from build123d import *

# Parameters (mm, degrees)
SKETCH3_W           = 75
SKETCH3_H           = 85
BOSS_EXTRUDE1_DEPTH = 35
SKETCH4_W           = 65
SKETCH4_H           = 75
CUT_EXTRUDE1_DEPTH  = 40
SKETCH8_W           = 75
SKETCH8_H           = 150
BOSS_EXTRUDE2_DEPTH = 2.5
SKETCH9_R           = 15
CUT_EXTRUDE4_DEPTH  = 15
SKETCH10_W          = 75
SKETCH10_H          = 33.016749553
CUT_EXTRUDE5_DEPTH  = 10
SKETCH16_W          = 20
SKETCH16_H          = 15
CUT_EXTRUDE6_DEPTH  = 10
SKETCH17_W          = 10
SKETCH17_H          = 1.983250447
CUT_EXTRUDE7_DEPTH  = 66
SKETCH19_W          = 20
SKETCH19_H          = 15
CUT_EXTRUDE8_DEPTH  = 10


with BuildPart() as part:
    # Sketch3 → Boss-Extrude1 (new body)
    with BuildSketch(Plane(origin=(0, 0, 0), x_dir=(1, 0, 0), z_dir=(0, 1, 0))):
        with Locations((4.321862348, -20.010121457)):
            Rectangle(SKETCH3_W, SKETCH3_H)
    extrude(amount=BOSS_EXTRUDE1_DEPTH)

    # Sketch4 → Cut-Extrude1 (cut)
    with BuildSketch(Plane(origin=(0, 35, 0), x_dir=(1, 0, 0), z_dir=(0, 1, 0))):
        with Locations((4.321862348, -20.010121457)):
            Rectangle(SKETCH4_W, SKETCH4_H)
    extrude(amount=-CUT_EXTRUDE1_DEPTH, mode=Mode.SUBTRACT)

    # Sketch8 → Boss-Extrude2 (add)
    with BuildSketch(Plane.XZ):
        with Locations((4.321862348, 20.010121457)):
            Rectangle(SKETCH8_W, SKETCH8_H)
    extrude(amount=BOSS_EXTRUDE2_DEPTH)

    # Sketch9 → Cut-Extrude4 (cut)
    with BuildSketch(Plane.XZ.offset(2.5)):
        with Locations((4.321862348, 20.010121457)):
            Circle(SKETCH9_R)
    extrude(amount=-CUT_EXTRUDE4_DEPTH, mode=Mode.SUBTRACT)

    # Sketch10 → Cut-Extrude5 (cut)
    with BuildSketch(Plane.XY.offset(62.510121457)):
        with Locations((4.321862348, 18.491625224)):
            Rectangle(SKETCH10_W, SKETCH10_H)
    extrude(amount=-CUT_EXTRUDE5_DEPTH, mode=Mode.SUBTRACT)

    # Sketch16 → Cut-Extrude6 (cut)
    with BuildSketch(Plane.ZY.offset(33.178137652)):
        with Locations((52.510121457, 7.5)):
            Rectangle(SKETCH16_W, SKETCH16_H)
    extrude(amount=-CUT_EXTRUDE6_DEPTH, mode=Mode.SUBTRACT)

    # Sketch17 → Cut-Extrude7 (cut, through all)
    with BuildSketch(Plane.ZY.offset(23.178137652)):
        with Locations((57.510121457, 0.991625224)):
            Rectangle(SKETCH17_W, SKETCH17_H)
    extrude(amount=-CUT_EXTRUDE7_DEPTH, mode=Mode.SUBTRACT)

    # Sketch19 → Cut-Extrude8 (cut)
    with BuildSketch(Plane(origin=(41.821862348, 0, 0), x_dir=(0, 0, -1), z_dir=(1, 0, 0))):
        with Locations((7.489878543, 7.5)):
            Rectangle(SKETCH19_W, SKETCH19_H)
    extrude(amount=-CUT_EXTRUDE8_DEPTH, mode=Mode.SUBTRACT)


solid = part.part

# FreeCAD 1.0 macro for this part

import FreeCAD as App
import Part
import Sketcher

V = App.Vector


def add_polygon(sketch, points):
    """Adds a closed chain of lines whose ends are joined by coincident constraints."""
    first, n = sketch.GeometryCount, len(points)
    for a, b in zip(points, points[1:] + points[:1]):
        sketch.addGeometry(Part.LineSegment(App.Vector(*a, 0), App.Vector(*b, 0)), False)
    for i in range(n):
        sketch.addConstraint(Sketcher.Constraint("Coincident", first + i, 2, first + (i + 1) % n, 1))

doc = App.newDocument("Part")
body = doc.addObject("PartDesign::Body", "Body")

# Sketch on XZ plane
sketch1 = body.newObject("Sketcher::SketchObject", "Sketch")
sketch1.AttachmentSupport = (doc.getObject("XZ_Plane"), [""])
sketch1.MapMode = "FlatFace"
add_polygon(sketch1, [(-33.178138, -22.489879), (-33.178138, 62.510121), (41.821862, 62.510121), (41.821862, -22.489879)])  # lines 0-3
sketch1.addConstraint([
    Sketcher.Constraint("Vertical", 0),
    Sketcher.Constraint("Horizontal", 1),
    Sketcher.Constraint("Vertical", 2),
    Sketcher.Constraint("Horizontal", 3),
    Sketcher.Constraint("DistanceX", 1, 1, 1, 2, 75.0),
    Sketcher.Constraint("DistanceY", 0, 1, 0, 2, 85.0),
    Sketcher.Constraint("DistanceY", -1, 1, 0, 2, 62.510121),
    Sketcher.Constraint("DistanceX", 0, 2, -1, 1, 33.178138),
])
pad1 = body.newObject("PartDesign::Pad", "Pad")
pad1.Profile = sketch1
pad1.Length = 35
pad1.Reversed = True

# Sketch on XZ plane
sketch2 = body.newObject("Sketcher::SketchObject", "Sketch001")
sketch2.AttachmentSupport = (doc.getObject("XZ_Plane"), [""])
sketch2.MapMode = "FlatFace"
sketch2.AttachmentOffset = App.Placement(V(0, 0, -35), App.Rotation())
add_polygon(sketch2, [(-28.178138, -17.489879), (-28.178138, 57.510121), (36.821862, 57.510121), (36.821862, -17.489879)])  # lines 0-3
sketch2.addConstraint([
    Sketcher.Constraint("Vertical", 0),
    Sketcher.Constraint("Horizontal", 1),
    Sketcher.Constraint("Vertical", 2),
    Sketcher.Constraint("Horizontal", 3),
    Sketcher.Constraint("DistanceX", 1, 1, 1, 2, 65.0),
    Sketcher.Constraint("DistanceY", 0, 1, 0, 2, 75.0),
    Sketcher.Constraint("DistanceY", -1, 1, 0, 2, 57.510121),
    Sketcher.Constraint("DistanceX", 0, 2, -1, 1, 28.178138),
])
pocket1 = body.newObject("PartDesign::Pocket", "Pocket")
pocket1.Profile = sketch2
pocket1.Length = 40
pocket1.Reversed = True

# Sketch on XZ plane
sketch3 = body.newObject("Sketcher::SketchObject", "Sketch002")
sketch3.AttachmentSupport = (doc.getObject("XZ_Plane"), [""])
sketch3.MapMode = "FlatFace"
add_polygon(sketch3, [(-33.178138, 95.010121), (-33.178138, -54.989879), (41.821862, -54.989879), (41.821862, 95.010121)])  # lines 0-3
sketch3.addConstraint([
    Sketcher.Constraint("Vertical", 0),
    Sketcher.Constraint("Horizontal", 1),
    Sketcher.Constraint("Vertical", 2),
    Sketcher.Constraint("Horizontal", 3),
    Sketcher.Constraint("DistanceX", 1, 1, 1, 2, 75.0),
    Sketcher.Constraint("DistanceY", 0, 2, 0, 1, 150.0),
    Sketcher.Constraint("DistanceY", 0, 2, -1, 1, 54.989879),
    Sketcher.Constraint("DistanceX", 0, 2, -1, 1, 33.178138),
])
pad2 = body.newObject("PartDesign::Pad", "Pad001")
pad2.Profile = sketch3
pad2.Length = 2.5

# Sketch on XZ plane
sketch4 = body.newObject("Sketcher::SketchObject", "Sketch003")
sketch4.AttachmentSupport = (doc.getObject("XZ_Plane"), [""])
sketch4.MapMode = "FlatFace"
sketch4.AttachmentOffset = App.Placement(V(0, 0, 2.5), App.Rotation())
sketch4.addGeometry(Part.Circle(V(4.321862, 20.010121, 0), V(0, 0, 1), 15), False)
sketch4.addConstraint([
    Sketcher.Constraint("Diameter", 0, 30.0),
    Sketcher.Constraint("DistanceY", -1, 1, 0, 3, 20.010121),
    Sketcher.Constraint("DistanceX", -1, 1, 0, 3, 4.321862),
])
pocket2 = body.newObject("PartDesign::Pocket", "Pocket001")
pocket2.Profile = sketch4
pocket2.Length = 15

# Sketch on XY plane
sketch5 = body.newObject("Sketcher::SketchObject", "Sketch004")
sketch5.AttachmentSupport = (doc.getObject("XY_Plane"), [""])
sketch5.MapMode = "FlatFace"
sketch5.AttachmentOffset = App.Placement(V(0, 0, 62.510121), App.Rotation())
add_polygon(sketch5, [(-33.178138, 35), (-33.178138, 1.98325), (41.821862, 1.98325), (41.821862, 35)])  # lines 0-3
sketch5.addConstraint([
    Sketcher.Constraint("Vertical", 0),
    Sketcher.Constraint("Horizontal", 1),
    Sketcher.Constraint("Vertical", 2),
    Sketcher.Constraint("Horizontal", 3),
    Sketcher.Constraint("DistanceX", 1, 1, 1, 2, 75.0),
    Sketcher.Constraint("DistanceY", -1, 1, 2, 2, 35.0),
    Sketcher.Constraint("DistanceY", 0, 2, 0, 1, 33.01675),
    Sketcher.Constraint("DistanceX", 0, 2, -1, 1, 33.178138),
])
pocket3 = body.newObject("PartDesign::Pocket", "Pocket002")
pocket3.Profile = sketch5
pocket3.Length = 10

# Sketch on YZ plane
sketch6 = body.newObject("Sketcher::SketchObject", "Sketch005")
sketch6.AttachmentSupport = (doc.getObject("YZ_Plane"), [""])
sketch6.MapMode = "FlatFace"
sketch6.AttachmentOffset = App.Placement(V(0, 0, -33.178138), App.Rotation())
add_polygon(sketch6, [(15, 42.510121), (0, 42.510121), (0, 62.510121), (15, 62.510121)])  # lines 0-3
sketch6.addConstraint([
    Sketcher.Constraint("Horizontal", 0),
    Sketcher.Constraint("Vertical", 1),
    Sketcher.Constraint("Horizontal", 2),
    Sketcher.Constraint("Vertical", 3),
    Sketcher.Constraint("PointOnObject", 0, 2, -2),
    Sketcher.Constraint("DistanceX", 0, 2, 0, 1, 15.0),
    Sketcher.Constraint("DistanceY", 1, 1, 1, 2, 20.0),
    Sketcher.Constraint("DistanceY", -1, 1, 0, 2, 42.510121),
])
pocket4 = body.newObject("PartDesign::Pocket", "Pocket003")
pocket4.Profile = sketch6
pocket4.Length = 10
pocket4.Reversed = True

# Sketch on YZ plane
sketch7 = body.newObject("Sketcher::SketchObject", "Sketch006")
sketch7.AttachmentSupport = (doc.getObject("YZ_Plane"), [""])
sketch7.MapMode = "FlatFace"
sketch7.AttachmentOffset = App.Placement(V(0, 0, -23.178138), App.Rotation())
add_polygon(sketch7, [(1.98325, 52.510121), (0, 52.510121), (0, 62.510121), (1.98325, 62.510121)])  # lines 0-3
sketch7.addConstraint([
    Sketcher.Constraint("Horizontal", 0),
    Sketcher.Constraint("Vertical", 1),
    Sketcher.Constraint("Horizontal", 2),
    Sketcher.Constraint("Vertical", 3),
    Sketcher.Constraint("PointOnObject", 0, 2, -2),
    Sketcher.Constraint("DistanceY", 1, 1, 1, 2, 10.0),
    Sketcher.Constraint("DistanceX", 0, 2, 0, 1, 1.98325),
    Sketcher.Constraint("DistanceY", -1, 1, 0, 2, 52.510121),
])
pocket5 = body.newObject("PartDesign::Pocket", "Pocket004")
pocket5.Profile = sketch7
pocket5.Type = "ThroughAll"
pocket5.Reversed = True

# Sketch on YZ plane
sketch8 = body.newObject("Sketcher::SketchObject", "Sketch007")
sketch8.AttachmentSupport = (doc.getObject("YZ_Plane"), [""])
sketch8.MapMode = "FlatFace"
sketch8.AttachmentOffset = App.Placement(V(0, 0, 41.821862), App.Rotation())
add_polygon(sketch8, [(15, 2.510121), (0, 2.510121), (0, -17.489879), (15, -17.489879)])  # lines 0-3
sketch8.addConstraint([
    Sketcher.Constraint("Horizontal", 0),
    Sketcher.Constraint("Vertical", 1),
    Sketcher.Constraint("Horizontal", 2),
    Sketcher.Constraint("Vertical", 3),
    Sketcher.Constraint("PointOnObject", 0, 2, -2),
    Sketcher.Constraint("DistanceX", 0, 2, 0, 1, 15.0),
    Sketcher.Constraint("DistanceY", 1, 2, 1, 1, 20.0),
    Sketcher.Constraint("DistanceY", -1, 1, 0, 2, 2.510121),
])
pocket6 = body.newObject("PartDesign::Pocket", "Pocket005")
pocket6.Profile = sketch8
pocket6.Length = 10

doc.recompute()
